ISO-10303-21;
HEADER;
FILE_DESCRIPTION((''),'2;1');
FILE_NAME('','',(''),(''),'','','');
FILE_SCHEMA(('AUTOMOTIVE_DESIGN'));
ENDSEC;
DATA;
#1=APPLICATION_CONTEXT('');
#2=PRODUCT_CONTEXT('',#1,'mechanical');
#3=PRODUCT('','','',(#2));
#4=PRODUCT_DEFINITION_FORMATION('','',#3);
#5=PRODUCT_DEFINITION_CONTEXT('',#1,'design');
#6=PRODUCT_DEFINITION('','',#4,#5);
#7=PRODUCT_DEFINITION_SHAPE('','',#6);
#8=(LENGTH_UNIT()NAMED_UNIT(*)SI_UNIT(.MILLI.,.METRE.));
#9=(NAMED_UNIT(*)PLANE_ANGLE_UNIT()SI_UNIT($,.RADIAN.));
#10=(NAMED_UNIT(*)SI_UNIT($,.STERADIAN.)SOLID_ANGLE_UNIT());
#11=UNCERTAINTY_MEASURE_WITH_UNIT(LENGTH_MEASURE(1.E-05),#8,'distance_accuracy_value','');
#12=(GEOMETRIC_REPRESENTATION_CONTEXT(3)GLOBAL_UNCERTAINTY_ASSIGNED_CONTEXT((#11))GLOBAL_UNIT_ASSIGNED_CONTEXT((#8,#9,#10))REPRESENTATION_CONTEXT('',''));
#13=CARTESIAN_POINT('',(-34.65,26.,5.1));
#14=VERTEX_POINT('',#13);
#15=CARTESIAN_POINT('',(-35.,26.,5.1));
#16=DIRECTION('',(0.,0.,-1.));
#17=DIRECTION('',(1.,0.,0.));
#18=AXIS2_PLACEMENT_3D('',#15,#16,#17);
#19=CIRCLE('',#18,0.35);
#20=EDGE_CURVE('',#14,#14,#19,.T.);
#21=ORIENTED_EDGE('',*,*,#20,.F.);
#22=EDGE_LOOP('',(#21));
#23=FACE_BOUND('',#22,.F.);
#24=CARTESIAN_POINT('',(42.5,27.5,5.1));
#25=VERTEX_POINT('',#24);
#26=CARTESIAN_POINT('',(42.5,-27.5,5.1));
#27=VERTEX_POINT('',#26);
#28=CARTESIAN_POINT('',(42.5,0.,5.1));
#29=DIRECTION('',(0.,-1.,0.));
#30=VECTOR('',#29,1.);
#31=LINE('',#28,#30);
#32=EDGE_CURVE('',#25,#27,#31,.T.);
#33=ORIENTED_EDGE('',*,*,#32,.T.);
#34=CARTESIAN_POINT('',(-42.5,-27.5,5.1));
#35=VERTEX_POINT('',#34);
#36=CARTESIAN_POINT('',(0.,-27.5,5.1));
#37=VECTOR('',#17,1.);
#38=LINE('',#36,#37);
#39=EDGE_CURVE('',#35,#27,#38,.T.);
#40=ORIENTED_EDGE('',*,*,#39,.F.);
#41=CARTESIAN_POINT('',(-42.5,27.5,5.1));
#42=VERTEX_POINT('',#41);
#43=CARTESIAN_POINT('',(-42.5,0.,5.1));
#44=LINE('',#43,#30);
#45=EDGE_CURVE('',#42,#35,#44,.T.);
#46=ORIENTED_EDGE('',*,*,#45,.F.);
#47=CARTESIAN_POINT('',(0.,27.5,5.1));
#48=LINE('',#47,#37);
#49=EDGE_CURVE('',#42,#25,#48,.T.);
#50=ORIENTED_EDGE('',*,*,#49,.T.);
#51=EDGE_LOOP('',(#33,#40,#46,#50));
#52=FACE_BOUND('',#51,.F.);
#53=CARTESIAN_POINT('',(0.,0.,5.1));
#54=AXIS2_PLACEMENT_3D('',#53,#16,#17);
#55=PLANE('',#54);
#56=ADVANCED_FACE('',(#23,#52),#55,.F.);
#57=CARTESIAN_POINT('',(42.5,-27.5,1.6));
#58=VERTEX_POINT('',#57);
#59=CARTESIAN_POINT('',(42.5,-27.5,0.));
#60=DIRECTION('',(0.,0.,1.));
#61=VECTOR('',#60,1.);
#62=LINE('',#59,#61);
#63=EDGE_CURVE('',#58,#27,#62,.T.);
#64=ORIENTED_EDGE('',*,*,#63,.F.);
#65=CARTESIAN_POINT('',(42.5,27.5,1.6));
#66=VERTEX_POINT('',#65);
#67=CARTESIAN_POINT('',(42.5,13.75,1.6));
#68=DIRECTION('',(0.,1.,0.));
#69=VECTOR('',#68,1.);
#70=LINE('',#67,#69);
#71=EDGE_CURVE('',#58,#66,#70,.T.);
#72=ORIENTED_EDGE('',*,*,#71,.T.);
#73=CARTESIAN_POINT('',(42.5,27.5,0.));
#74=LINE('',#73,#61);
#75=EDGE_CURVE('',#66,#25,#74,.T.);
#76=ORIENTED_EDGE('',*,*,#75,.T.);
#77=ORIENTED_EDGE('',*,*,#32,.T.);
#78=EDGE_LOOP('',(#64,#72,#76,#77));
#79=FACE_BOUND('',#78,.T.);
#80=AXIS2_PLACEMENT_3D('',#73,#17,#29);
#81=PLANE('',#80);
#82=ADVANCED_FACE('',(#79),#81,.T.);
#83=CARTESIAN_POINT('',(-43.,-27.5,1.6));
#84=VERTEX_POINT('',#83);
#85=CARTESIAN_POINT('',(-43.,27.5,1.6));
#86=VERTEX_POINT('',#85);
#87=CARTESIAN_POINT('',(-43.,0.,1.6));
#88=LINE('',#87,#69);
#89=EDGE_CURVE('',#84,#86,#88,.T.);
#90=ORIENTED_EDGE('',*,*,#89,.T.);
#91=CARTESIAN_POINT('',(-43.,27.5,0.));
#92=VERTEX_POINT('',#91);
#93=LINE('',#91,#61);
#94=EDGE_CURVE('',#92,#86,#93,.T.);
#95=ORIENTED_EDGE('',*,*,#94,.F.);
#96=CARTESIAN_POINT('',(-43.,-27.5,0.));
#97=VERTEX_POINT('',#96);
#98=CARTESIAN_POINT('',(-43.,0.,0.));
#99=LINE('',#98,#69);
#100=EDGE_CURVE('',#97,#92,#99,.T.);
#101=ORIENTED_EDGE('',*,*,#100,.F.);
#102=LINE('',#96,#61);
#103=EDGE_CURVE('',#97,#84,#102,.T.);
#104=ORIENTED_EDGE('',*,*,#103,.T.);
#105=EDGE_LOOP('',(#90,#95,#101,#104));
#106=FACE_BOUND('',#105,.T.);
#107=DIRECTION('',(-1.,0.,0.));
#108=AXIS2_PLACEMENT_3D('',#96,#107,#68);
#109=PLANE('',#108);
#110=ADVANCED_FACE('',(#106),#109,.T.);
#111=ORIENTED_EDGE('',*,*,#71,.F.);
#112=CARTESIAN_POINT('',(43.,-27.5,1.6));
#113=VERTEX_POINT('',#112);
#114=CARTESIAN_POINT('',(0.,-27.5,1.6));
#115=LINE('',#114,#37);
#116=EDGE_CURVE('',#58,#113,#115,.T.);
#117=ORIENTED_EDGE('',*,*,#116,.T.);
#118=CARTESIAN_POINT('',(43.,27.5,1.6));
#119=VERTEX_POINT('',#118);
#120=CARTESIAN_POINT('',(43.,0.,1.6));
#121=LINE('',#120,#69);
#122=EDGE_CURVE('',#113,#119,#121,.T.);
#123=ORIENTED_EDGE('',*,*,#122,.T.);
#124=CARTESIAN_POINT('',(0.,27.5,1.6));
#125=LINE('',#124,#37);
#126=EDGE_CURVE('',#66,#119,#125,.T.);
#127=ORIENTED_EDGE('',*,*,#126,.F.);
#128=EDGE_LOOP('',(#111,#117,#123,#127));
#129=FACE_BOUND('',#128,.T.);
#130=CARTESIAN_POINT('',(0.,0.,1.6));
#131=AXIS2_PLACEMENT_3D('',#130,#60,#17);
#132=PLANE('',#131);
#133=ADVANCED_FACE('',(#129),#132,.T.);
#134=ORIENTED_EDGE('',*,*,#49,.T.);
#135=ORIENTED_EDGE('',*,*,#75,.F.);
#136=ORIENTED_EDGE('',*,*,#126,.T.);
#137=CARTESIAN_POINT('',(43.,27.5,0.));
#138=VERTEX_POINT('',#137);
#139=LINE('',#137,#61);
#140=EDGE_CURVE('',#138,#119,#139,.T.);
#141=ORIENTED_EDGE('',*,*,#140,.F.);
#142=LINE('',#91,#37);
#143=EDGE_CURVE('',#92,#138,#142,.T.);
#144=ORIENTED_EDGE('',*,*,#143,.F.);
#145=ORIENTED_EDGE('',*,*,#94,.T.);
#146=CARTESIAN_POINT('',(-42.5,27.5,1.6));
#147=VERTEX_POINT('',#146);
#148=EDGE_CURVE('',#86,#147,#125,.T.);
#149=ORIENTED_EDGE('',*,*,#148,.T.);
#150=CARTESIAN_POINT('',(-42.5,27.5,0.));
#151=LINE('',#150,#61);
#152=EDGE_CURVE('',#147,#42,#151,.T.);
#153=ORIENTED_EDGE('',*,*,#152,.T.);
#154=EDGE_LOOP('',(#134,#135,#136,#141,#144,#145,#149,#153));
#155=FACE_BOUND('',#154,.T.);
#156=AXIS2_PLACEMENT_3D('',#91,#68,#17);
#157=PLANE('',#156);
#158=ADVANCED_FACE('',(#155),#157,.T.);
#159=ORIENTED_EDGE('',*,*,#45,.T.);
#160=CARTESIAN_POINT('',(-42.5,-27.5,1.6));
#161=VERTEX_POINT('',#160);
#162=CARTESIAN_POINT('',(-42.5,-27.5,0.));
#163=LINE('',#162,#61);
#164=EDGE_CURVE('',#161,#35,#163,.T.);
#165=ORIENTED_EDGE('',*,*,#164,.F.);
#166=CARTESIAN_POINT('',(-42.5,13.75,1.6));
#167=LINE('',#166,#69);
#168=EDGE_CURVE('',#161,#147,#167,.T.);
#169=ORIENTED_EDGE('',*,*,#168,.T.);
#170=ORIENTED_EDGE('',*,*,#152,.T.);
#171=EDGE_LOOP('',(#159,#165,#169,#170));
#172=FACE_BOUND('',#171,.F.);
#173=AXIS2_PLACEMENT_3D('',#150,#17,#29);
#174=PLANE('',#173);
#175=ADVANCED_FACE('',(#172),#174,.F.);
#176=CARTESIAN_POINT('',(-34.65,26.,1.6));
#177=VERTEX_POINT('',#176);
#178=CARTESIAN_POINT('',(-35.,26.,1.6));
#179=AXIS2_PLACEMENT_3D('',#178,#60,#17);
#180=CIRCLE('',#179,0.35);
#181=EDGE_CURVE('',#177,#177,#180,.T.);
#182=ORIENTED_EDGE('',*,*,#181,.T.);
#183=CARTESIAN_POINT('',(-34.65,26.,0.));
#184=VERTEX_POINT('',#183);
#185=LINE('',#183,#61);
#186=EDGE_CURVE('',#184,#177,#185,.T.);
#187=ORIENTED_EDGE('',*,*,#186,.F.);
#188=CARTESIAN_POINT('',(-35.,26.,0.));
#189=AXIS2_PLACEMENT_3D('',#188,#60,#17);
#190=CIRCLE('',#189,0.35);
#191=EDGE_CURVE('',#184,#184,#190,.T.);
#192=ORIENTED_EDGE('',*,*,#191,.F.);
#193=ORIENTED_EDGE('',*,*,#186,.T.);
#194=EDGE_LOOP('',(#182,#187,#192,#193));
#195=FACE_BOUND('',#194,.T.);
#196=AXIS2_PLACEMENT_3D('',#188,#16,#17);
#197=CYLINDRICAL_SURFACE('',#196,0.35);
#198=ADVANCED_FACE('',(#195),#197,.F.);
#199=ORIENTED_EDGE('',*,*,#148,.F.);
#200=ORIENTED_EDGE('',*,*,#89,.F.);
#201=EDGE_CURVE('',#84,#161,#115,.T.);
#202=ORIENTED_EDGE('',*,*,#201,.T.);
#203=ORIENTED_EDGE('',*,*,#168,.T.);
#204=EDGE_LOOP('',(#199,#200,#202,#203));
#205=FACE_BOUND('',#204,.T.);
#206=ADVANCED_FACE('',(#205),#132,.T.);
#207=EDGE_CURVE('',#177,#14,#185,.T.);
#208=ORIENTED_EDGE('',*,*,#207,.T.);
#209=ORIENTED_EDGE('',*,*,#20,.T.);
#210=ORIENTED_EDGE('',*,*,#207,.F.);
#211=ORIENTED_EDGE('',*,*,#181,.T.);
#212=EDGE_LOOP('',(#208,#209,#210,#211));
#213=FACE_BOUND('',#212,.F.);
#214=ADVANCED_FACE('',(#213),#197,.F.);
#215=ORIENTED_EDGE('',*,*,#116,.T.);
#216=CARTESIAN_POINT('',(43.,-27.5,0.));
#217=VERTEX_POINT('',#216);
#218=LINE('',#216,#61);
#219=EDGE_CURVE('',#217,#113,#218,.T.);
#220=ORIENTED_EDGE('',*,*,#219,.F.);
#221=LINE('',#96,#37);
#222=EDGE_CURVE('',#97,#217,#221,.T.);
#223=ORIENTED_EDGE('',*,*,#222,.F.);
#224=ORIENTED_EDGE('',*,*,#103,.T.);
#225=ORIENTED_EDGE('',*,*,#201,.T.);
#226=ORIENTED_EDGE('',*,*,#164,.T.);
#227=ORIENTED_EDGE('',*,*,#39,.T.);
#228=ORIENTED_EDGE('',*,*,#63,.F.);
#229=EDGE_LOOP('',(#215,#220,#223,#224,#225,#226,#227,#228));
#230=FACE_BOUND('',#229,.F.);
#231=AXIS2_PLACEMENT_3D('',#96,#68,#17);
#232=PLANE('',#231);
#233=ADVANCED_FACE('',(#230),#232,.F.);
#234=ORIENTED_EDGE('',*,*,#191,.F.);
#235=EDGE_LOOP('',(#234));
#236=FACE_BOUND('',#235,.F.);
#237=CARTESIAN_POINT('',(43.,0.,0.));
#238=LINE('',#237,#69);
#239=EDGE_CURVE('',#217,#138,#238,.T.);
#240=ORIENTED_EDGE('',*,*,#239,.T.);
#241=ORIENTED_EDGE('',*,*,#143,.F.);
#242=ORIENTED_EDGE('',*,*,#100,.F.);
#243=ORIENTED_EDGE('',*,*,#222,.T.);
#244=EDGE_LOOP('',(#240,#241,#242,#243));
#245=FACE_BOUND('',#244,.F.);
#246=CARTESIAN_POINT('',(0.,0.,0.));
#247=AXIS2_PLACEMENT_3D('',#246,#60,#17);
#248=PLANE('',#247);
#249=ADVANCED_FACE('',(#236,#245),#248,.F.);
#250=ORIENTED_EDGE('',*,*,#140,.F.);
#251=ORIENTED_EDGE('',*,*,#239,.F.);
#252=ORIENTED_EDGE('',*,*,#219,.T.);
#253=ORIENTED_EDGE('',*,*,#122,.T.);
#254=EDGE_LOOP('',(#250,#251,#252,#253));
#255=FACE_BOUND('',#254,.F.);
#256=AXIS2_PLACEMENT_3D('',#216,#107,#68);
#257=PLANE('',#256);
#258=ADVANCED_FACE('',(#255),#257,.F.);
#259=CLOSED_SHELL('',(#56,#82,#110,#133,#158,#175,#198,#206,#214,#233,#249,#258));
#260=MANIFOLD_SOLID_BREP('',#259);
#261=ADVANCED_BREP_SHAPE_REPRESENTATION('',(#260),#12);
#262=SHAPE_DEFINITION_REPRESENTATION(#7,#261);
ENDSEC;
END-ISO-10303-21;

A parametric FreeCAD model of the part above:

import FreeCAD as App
import Part
import Sketcher
from FreeCAD import Vector
Q = App.Units.Quantity

doc = App.newDocument("Part")
params = doc.addObject("Spreadsheet::Sheet", "Params")
for row, (alias, value) in enumerate([
    ("sketch1_diameter", "0.7 mm"),
    ("sketch1_width", "86 mm"),
    ("sketch1_height", "55 mm"),
    ("pad1_length", "1.6 mm"),
    ("sketch2_diameter", "0.7 mm"),
    ("sketch2_width", "85 mm"),
    ("sketch2_height", "55 mm"),
    ("pad2_length", "5.1 mm"),
], start=1):
    params.set(f"A{row}", alias)
    params.set(f"B{row}", "=" + value)
    params.setAlias(f"B{row}", alias)

body = doc.addObject("PartDesign::Body", "Body")

sketch1 = doc.addObject("Sketcher::SketchObject", "Sketch")
body.addObject(sketch1)
sketch1.AttachmentSupport = (doc.XY_Plane, [""])
sketch1.MapMode = "FlatFace"
sketch1.addGeometry(Part.LineSegment(Vector(-43, 27.5, 0), Vector(-43, -27.5, 0)), False)
sketch1.addGeometry(Part.LineSegment(Vector(-43, -27.5, 0), Vector(43, -27.5, 0)), False)
sketch1.addGeometry(Part.LineSegment(Vector(43, -27.5, 0), Vector(43, 27.5, 0)), False)
sketch1.addGeometry(Part.LineSegment(Vector(43, 27.5, 0), Vector(-43, 27.5, 0)), False)
sketch1.addGeometry(Part.Circle(Vector(-35, 26, 0), Vector(0, 0, 1), 0.35), False)
sketch1.addConstraint(Sketcher.Constraint("Coincident", 0, 2, 1, 1))
sketch1.addConstraint(Sketcher.Constraint("Coincident", 1, 2, 2, 1))
sketch1.addConstraint(Sketcher.Constraint("Coincident", 2, 2, 3, 1))
sketch1.addConstraint(Sketcher.Constraint("Coincident", 3, 2, 0, 1))
sketch1.addConstraint(Sketcher.Constraint("Vertical", 0))
sketch1.addConstraint(Sketcher.Constraint("Horizontal", 1))
sketch1.addConstraint(Sketcher.Constraint("Vertical", 2))
sketch1.addConstraint(Sketcher.Constraint("Horizontal", 3))
sketch1.addConstraint(Sketcher.Constraint("Symmetric", 0, 2, 2, 2, -1, 1))
sketch1.addConstraint(Sketcher.Constraint("Diameter", 4, Q("0.7 mm")))
sketch1.addConstraint(Sketcher.Constraint("DistanceX", 1, 1, 1, 2, Q("86 mm")))
sketch1.addConstraint(Sketcher.Constraint("DistanceY", 0, 2, 0, 1, Q("55 mm")))
sketch1.addConstraint(Sketcher.Constraint("DistanceX", 4, 3, -1, 1, Q("35 mm")))
sketch1.addConstraint(Sketcher.Constraint("DistanceY", -1, 1, 4, 3, Q("26 mm")))
sketch1.setExpression("Constraints[9]", "Params.sketch1_diameter")
sketch1.setExpression("Constraints[10]", "Params.sketch1_width")
sketch1.setExpression("Constraints[11]", "Params.sketch1_height")
pad1 = doc.addObject("PartDesign::Pad", "Pad")
body.addObject(pad1)
pad1.Profile = sketch1
pad1.setExpression("Length", "Params.pad1_length")

sketch2 = doc.addObject("Sketcher::SketchObject", "Sketch001")
body.addObject(sketch2)
sketch2.AttachmentSupport = (doc.XY_Plane, [""])
sketch2.MapMode = "FlatFace"
sketch2.addGeometry(Part.LineSegment(Vector(-42.5, -27.5, 0), Vector(-42.5, 27.5, 0)), False)
sketch2.addGeometry(Part.LineSegment(Vector(-42.5, 27.5, 0), Vector(42.5, 27.5, 0)), False)
sketch2.addGeometry(Part.LineSegment(Vector(42.5, 27.5, 0), Vector(42.5, -27.5, 0)), False)
sketch2.addGeometry(Part.LineSegment(Vector(42.5, -27.5, 0), Vector(-42.5, -27.5, 0)), False)
sketch2.addGeometry(Part.Circle(Vector(-35, 26, 0), Vector(0, 0, 1), 0.35), False)
sketch2.addConstraint(Sketcher.Constraint("Coincident", 0, 2, 1, 1))
sketch2.addConstraint(Sketcher.Constraint("Coincident", 1, 2, 2, 1))
sketch2.addConstraint(Sketcher.Constraint("Coincident", 2, 2, 3, 1))
sketch2.addConstraint(Sketcher.Constraint("Coincident", 3, 2, 0, 1))
sketch2.addConstraint(Sketcher.Constraint("Vertical", 0))
sketch2.addConstraint(Sketcher.Constraint("Horizontal", 1))
sketch2.addConstraint(Sketcher.Constraint("Vertical", 2))
sketch2.addConstraint(Sketcher.Constraint("Horizontal", 3))
sketch2.addConstraint(Sketcher.Constraint("Symmetric", 0, 2, 2, 2, -1, 1))
sketch2.addConstraint(Sketcher.Constraint("Diameter", 4, Q("0.7 mm")))
sketch2.addConstraint(Sketcher.Constraint("DistanceX", 1, 1, 1, 2, Q("85 mm")))
sketch2.addConstraint(Sketcher.Constraint("DistanceY", 0, 1, 0, 2, Q("55 mm")))
sketch2.addConstraint(Sketcher.Constraint("DistanceX", 4, 3, -1, 1, Q("35 mm")))
sketch2.addConstraint(Sketcher.Constraint("DistanceY", -1, 1, 4, 3, Q("26 mm")))
sketch2.setExpression("Constraints[9]", "Params.sketch2_diameter")
sketch2.setExpression("Constraints[10]", "Params.sketch2_width")
sketch2.setExpression("Constraints[11]", "Params.sketch2_height")
pad2 = doc.addObject("PartDesign::Pad", "Pad001")
body.addObject(pad2)
pad2.Profile = sketch2
pad2.setExpression("Length", "Params.pad2_length")

doc.recompute()
